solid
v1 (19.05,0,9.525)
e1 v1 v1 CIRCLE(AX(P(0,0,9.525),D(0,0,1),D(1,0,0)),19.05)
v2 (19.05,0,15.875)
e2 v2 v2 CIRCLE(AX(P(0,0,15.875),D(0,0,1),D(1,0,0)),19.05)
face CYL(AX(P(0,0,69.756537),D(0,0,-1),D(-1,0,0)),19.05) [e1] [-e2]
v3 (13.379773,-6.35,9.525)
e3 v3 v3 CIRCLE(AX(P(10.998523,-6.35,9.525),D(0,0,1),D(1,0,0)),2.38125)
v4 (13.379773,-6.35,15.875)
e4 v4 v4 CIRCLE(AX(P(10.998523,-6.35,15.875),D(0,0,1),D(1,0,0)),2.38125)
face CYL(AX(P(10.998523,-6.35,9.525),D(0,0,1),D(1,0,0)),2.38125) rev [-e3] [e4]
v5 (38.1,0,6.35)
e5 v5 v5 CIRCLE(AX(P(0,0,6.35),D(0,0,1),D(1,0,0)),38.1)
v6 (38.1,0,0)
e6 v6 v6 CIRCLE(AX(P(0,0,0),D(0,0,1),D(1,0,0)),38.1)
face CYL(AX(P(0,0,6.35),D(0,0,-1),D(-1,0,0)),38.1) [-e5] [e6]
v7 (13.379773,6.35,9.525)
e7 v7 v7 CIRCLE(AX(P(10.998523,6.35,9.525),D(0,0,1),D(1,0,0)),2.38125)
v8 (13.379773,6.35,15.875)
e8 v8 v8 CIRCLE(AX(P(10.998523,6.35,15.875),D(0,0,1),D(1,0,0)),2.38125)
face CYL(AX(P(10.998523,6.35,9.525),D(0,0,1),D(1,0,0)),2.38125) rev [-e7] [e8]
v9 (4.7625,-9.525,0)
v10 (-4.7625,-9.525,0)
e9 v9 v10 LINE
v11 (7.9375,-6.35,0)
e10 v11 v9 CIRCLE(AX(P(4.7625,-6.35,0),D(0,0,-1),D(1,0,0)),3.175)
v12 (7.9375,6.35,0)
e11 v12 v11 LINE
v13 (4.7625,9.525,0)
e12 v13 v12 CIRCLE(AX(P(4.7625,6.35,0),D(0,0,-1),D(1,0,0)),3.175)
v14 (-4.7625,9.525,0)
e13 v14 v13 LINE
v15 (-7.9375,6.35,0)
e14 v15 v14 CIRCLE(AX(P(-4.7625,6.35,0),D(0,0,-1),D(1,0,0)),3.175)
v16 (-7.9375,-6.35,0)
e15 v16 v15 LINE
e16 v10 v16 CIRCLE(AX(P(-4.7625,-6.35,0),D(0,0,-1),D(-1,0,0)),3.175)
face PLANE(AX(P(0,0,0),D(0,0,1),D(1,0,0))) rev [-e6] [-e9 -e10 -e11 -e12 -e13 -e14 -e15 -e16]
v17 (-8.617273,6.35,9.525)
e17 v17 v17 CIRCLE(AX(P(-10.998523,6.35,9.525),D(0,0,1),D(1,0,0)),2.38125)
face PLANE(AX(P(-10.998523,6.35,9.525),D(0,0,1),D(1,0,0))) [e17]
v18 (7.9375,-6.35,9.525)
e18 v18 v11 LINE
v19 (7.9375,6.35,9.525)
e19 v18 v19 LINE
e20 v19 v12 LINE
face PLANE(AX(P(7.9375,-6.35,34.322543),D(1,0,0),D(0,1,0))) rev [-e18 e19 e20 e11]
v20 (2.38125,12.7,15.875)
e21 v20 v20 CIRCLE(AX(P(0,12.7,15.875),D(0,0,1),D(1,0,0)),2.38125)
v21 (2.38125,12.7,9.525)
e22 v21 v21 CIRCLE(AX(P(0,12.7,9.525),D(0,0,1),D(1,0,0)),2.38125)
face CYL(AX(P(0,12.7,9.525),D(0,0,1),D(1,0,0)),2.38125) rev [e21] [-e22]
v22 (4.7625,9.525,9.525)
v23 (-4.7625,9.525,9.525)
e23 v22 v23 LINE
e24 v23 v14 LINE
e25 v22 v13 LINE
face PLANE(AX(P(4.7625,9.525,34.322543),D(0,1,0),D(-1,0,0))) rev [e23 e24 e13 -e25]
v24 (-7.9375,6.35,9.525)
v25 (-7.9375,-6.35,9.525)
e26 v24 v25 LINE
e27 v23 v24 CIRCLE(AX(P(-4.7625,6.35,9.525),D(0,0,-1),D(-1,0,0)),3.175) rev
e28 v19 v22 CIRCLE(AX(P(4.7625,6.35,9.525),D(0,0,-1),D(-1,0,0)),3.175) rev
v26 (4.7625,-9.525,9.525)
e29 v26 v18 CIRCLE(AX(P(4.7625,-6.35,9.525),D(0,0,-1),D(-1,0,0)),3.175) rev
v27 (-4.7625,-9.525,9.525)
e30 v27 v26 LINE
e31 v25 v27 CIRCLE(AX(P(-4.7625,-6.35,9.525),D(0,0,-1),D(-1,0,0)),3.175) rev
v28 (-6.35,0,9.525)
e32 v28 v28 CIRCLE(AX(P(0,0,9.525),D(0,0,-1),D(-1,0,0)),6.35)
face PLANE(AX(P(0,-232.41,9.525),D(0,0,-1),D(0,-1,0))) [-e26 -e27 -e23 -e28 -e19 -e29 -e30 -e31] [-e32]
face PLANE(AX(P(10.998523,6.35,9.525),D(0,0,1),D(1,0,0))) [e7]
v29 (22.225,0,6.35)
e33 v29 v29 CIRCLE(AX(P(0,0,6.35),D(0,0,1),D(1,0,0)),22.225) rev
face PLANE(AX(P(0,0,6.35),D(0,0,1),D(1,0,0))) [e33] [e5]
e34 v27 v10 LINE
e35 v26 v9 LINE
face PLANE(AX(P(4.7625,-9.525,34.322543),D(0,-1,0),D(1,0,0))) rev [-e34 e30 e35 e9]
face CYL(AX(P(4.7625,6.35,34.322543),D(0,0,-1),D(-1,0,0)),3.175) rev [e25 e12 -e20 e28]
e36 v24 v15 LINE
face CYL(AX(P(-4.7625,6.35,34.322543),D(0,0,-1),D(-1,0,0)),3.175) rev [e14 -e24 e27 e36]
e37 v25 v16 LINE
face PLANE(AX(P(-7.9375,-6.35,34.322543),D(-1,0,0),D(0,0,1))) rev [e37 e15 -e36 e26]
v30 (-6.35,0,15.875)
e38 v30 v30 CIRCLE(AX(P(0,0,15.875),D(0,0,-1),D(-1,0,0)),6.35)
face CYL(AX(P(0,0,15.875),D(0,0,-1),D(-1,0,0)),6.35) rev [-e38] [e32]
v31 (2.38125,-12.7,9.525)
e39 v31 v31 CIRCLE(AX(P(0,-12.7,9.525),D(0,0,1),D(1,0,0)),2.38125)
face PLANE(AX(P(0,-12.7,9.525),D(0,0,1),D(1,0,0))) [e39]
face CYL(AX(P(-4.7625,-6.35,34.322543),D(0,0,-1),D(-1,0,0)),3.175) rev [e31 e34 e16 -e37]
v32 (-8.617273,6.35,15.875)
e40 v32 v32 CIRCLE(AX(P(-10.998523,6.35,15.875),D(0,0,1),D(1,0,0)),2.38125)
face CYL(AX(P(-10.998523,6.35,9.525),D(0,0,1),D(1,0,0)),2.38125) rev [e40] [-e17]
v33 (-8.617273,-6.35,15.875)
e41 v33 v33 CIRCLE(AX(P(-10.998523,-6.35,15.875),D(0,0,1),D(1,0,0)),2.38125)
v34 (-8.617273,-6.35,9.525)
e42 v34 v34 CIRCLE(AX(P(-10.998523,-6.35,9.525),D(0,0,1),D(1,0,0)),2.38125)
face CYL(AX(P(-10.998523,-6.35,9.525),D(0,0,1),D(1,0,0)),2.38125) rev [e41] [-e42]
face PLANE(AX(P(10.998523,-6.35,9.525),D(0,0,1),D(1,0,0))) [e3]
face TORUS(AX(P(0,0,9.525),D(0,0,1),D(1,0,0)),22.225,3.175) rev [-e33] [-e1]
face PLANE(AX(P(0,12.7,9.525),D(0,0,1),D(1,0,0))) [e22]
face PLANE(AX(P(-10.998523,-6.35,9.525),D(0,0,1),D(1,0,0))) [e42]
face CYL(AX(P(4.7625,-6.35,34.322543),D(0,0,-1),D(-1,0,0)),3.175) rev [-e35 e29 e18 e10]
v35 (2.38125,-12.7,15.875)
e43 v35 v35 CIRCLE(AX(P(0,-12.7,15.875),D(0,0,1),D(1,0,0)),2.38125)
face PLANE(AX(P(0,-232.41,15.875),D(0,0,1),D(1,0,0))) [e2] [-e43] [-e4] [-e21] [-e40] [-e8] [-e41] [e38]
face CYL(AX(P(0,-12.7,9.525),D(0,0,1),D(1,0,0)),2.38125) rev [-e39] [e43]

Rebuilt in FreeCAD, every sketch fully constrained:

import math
import FreeCAD as App
import Part
import Sketcher

V = App.Vector
Q = App.Units.Quantity


def edges_at(feature, points):
    """Names of the edges that pass closest to the given points."""
    edges = feature.Shape.Edges
    near = lambda p: min(range(len(edges)), key=lambda i: edges[i].distToShape(Part.Vertex(*p))[0])
    return sorted({f"Edge{near(p) + 1}" for p in points})

doc = App.newDocument("Part")
body = doc.addObject("PartDesign::Body", "Body")

# Sketch on XY plane
sketch1 = body.newObject("Sketcher::SketchObject", "Sketch")
sketch1.AttachmentSupport = (doc.getObject("XY_Plane"), [""])
sketch1.MapMode = "FlatFace"
sketch1.addGeometry(Part.Circle(V(0, 0, 0), V(0, 0, 1), 38.1), False)
sketch1.addConstraint(Sketcher.Constraint("Coincident", 0, 3, -1, 1))
sketch1.addConstraint(Sketcher.Constraint("Diameter", 0, Q("3 in")))
pad1 = body.newObject("PartDesign::Pad", "Pad")
pad1.Profile = sketch1
pad1.Length = Q("0.25 in")

# Sketch on XY plane
sketch2 = body.newObject("Sketcher::SketchObject", "Sketch001")
sketch2.AttachmentSupport = (doc.getObject("XY_Plane"), [""])
sketch2.MapMode = "FlatFace"
sketch2.AttachmentOffset = App.Placement(V(0, 0, 0.25 * 25.4), App.Rotation())
sketch2.addGeometry(Part.Circle(V(0, 0, 0), V(0, 0, 1), 19.05), False)
sketch2.addConstraint(Sketcher.Constraint("Coincident", 0, 3, -1, 1))
sketch2.addConstraint(Sketcher.Constraint("Diameter", 0, Q("1.5 in")))
pad2 = body.newObject("PartDesign::Pad", "Pad001")
pad2.Profile = sketch2
pad2.Length = Q("0.375 in")

# Sketch on XY plane
sketch3 = body.newObject("Sketcher::SketchObject", "Sketch002")
sketch3.AttachmentSupport = (doc.getObject("XY_Plane"), [""])
sketch3.MapMode = "FlatFace"
sketch3.AttachmentOffset = App.Placement(V(0, 0, 0.375 * 25.4), App.Rotation())
sketch3.addGeometry(Part.LineSegment(V(4.7625, -9.525, 0), V(-4.7625, -9.525, 0)), False)
sketch3.addGeometry(Part.ArcOfCircle(Part.Circle(V(-4.7625, -6.35, 0), V(0, 0, 1), 3.175), math.radians(-180), math.radians(-90)), False)
sketch3.addGeometry(Part.LineSegment(V(-7.9375, -6.35, 0), V(-7.9375, 6.35, 0)), False)
sketch3.addGeometry(Part.ArcOfCircle(Part.Circle(V(-4.7625, 6.35, 0), V(0, 0, 1), 3.175), math.radians(90), math.radians(180)), False)
sketch3.addGeometry(Part.LineSegment(V(-4.7625, 9.525, 0), V(4.7625, 9.525, 0)), False)
sketch3.addGeometry(Part.ArcOfCircle(Part.Circle(V(4.7625, 6.35, 0), V(0, 0, 1), 3.175), math.radians(0), math.radians(90)), False)
sketch3.addGeometry(Part.LineSegment(V(7.9375, 6.35, 0), V(7.9375, -6.35, 0)), False)
sketch3.addGeometry(Part.ArcOfCircle(Part.Circle(V(4.7625, -6.35, 0), V(0, 0, 1), 3.175), math.radians(-90), math.radians(0)), False)
sketch3.addConstraint(Sketcher.Constraint("Tangent", 0, 2, 1, 2))
sketch3.addConstraint(Sketcher.Constraint("Tangent", 1, 1, 2, 1))
sketch3.addConstraint(Sketcher.Constraint("Tangent", 2, 2, 3, 2))
sketch3.addConstraint(Sketcher.Constraint("Tangent", 3, 1, 4, 1))
sketch3.addConstraint(Sketcher.Constraint("Tangent", 4, 2, 5, 2))
sketch3.addConstraint(Sketcher.Constraint("Tangent", 5, 1, 6, 1))
sketch3.addConstraint(Sketcher.Constraint("Tangent", 6, 2, 7, 2))
sketch3.addConstraint(Sketcher.Constraint("Tangent", 7, 1, 0, 1))
sketch3.addConstraint(Sketcher.Constraint("Horizontal", 0))
sketch3.addConstraint(Sketcher.Constraint("Vertical", 2))
sketch3.addConstraint(Sketcher.Constraint("Horizontal", 4))
sketch3.addConstraint(Sketcher.Constraint("Vertical", 6))
sketch3.addConstraint(Sketcher.Constraint("Equal", 1, 3))
sketch3.addConstraint(Sketcher.Constraint("Equal", 3, 5))
sketch3.addConstraint(Sketcher.Constraint("Equal", 5, 7))
sketch3.addConstraint(Sketcher.Constraint("Symmetric", 1, 3, 5, 3, -1, 1))
sketch3.addConstraint(Sketcher.Constraint("DistanceY", 2, 1, 2, 2, Q("0.5 in")))
sketch3.addConstraint(Sketcher.Constraint("Radius", 1, Q("0.125 in")))
sketch3.addConstraint(Sketcher.Constraint("DistanceX", 1, 1, 7, 3, Q("0.5 in")))
pocket1 = body.newObject("PartDesign::Pocket", "Pocket")
pocket1.Profile = sketch3
pocket1.Length = Q("0.375 in")

# Sketch on XY plane
sketch4 = body.newObject("Sketcher::SketchObject", "Sketch003")
sketch4.AttachmentSupport = (doc.getObject("XY_Plane"), [""])
sketch4.MapMode = "FlatFace"
sketch4.AttachmentOffset = App.Placement(V(0, 0, 0.375 * 25.4), App.Rotation())
sketch4.addGeometry(Part.Circle(V(0, 0, 0), V(0, 0, 1), 6.35), False)
sketch4.addConstraint(Sketcher.Constraint("Coincident", 0, 3, -1, 1))
sketch4.addConstraint(Sketcher.Constraint("Diameter", 0, Q("0.5 in")))
pocket2 = body.newObject("PartDesign::Pocket", "Pocket001")
pocket2.Profile = sketch4
pocket2.Type = "ThroughAll"
pocket2.Reversed = True
doc.recompute()

fillet = body.newObject("PartDesign::Fillet", "Fillet")
fillet.Base = (pocket2, edges_at(pocket2, [(-19.05, 0, 6.35)]))
fillet.Radius = Q("0.125 in")

# Sketch on XY plane
sketch5 = body.newObject("Sketcher::SketchObject", "Sketch004")
sketch5.AttachmentSupport = (doc.getObject("XY_Plane"), [""])
sketch5.MapMode = "FlatFace"
sketch5.AttachmentOffset = App.Placement(V(0, 0, 0.625 * 25.4), App.Rotation())
sketch5.addGeometry(Part.Circle(V(0, 12.7, 0), V(0, 0, 1), 2.38125), False)
sketch5.addGeometry(Part.Circle(V(10.998523, 6.35, 0), V(0, 0, 1), 2.38125), False)
sketch5.addGeometry(Part.Circle(V(10.998523, -6.35, 0), V(0, 0, 1), 2.38125), False)
sketch5.addGeometry(Part.Circle(V(0, -12.7, 0), V(0, 0, 1), 2.38125), False)
sketch5.addGeometry(Part.Circle(V(-10.998523, -6.35, 0), V(0, 0, 1), 2.38125), False)
sketch5.addGeometry(Part.Circle(V(-10.998523, 6.35, 0), V(0, 0, 1), 2.38125), False)
sketch5.addConstraint(Sketcher.Constraint("Equal", 0, 1))
sketch5.addConstraint(Sketcher.Constraint("Equal", 1, 2))
sketch5.addConstraint(Sketcher.Constraint("Equal", 2, 3))
sketch5.addConstraint(Sketcher.Constraint("Equal", 3, 4))
sketch5.addConstraint(Sketcher.Constraint("Equal", 4, 5))
sketch5.addConstraint(Sketcher.Constraint("Symmetric", 0, 3, 3, 3, -1, 1))
sketch5.addConstraint(Sketcher.Constraint("Symmetric", 1, 3, 4, 3, -1, 1))
sketch5.addConstraint(Sketcher.Constraint("Symmetric", 2, 3, 5, 3, -1, 1))
sketch5.addConstraint(Sketcher.Constraint("Symmetric", 2, 3, 4, 3, -2))
sketch5.addConstraint(Sketcher.Constraint("PointOnObject", 0, 3, -2))
sketch5.addConstraint(Sketcher.Constraint("Diameter", 0, Q("0.1875 in")))
sketch5.addConstraint(Sketcher.Constraint("DistanceY", 3, 3, 0, 3, Q("1 in")))
sketch5.addConstraint(Sketcher.Constraint("DistanceY", 2, 3, 1, 3, Q("0.5 in")))
sketch5.addConstraint(Sketcher.Constraint("DistanceX", -1, 1, 1, 3, 10.998523))
pocket3 = body.newObject("PartDesign::Pocket", "Pocket002")
pocket3.Profile = sketch5
pocket3.Length = Q("0.25 in")

doc.recompute()
